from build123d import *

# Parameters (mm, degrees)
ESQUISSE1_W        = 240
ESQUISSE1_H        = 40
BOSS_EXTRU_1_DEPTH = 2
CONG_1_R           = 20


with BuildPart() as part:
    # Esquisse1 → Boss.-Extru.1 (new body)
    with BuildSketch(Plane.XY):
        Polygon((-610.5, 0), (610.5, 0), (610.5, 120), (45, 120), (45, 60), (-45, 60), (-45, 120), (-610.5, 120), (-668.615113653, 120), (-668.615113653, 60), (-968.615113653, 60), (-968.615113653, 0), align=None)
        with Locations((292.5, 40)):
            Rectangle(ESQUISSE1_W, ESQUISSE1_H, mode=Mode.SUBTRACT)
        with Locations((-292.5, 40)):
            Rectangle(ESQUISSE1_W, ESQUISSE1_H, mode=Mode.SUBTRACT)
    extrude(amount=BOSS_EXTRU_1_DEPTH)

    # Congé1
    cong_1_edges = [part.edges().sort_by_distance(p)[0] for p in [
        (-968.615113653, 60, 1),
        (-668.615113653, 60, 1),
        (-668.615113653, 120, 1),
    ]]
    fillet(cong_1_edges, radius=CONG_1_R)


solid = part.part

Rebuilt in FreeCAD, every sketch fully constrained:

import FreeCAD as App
import Part
import Sketcher
Q = App.Units.Quantity


def edges_at(feature, points):
    """Names of the edges that pass closest to the given points."""
    edges = feature.Shape.Edges
    near = lambda p: min(range(len(edges)), key=lambda i: edges[i].distToShape(Part.Vertex(*p))[0])
    return sorted({f"Edge{near(p) + 1}" for p in points})

doc = App.newDocument("Part")
params = doc.addObject("Spreadsheet::Sheet", "Params")
for row, (alias, value) in enumerate([
    ("sketch1_width", "90 mm"),
    ("sketch1_width2", "300 mm"),
    ("sketch1_width3", "240 mm"),
    ("sketch1_height", "120 mm"),
    ("sketch1_height2", "40 mm"),
    ("pad1_length", "2 mm"),
    ("fillet_radius", "20 mm"),
], start=1):
    params.set(f"A{row}", alias)
    params.set(f"B{row}", "=" + value)
    params.setAlias(f"B{row}", alias)

body = doc.addObject("PartDesign::Body", "Body")

# Sketch on XY plane
sketch1 = body.newObject("Sketcher::SketchObject", "Sketch")
sketch1.AttachmentSupport = (doc.getObject("XY_Plane"), [""])
sketch1.MapMode = "FlatFace"
sketch1.addGeometry([
    Part.LineSegment(App.Vector(610, 0, 0), App.Vector(610, 120, 0)),  # 0
    Part.LineSegment(App.Vector(610, 120, 0), App.Vector(45, 120, 0)),  # 1
    Part.LineSegment(App.Vector(45, 120, 0), App.Vector(45, 60, 0)),  # 2
    Part.LineSegment(App.Vector(45, 60, 0), App.Vector(-45, 60, 0)),  # 3
    Part.LineSegment(App.Vector(-45, 60, 0), App.Vector(-45, 120, 0)),  # 4
    Part.LineSegment(App.Vector(-45, 120, 0), App.Vector(-669, 120, 0)),  # 5
    Part.LineSegment(App.Vector(-669, 120, 0), App.Vector(-669, 60, 0)),  # 6
    Part.LineSegment(App.Vector(-669, 60, 0), App.Vector(-969, 60, 0)),  # 7
    Part.LineSegment(App.Vector(-969, 60, 0), App.Vector(-969, 0, 0)),  # 8
    Part.LineSegment(App.Vector(-969, 0, 0), App.Vector(610, 0, 0)),  # 9
    Part.LineSegment(App.Vector(-172, 20, 0), App.Vector(-412, 20, 0)),  # 10
    Part.LineSegment(App.Vector(-412, 20, 0), App.Vector(-412, 60, 0)),  # 11
    Part.LineSegment(App.Vector(-412, 60, 0), App.Vector(-172, 60, 0)),  # 12
    Part.LineSegment(App.Vector(-172, 60, 0), App.Vector(-172, 20, 0)),  # 13
    Part.LineSegment(App.Vector(412, 20, 0), App.Vector(172, 20, 0)),  # 14
    Part.LineSegment(App.Vector(172, 20, 0), App.Vector(172, 60, 0)),  # 15
    Part.LineSegment(App.Vector(172, 60, 0), App.Vector(412, 60, 0)),  # 16
    Part.LineSegment(App.Vector(412, 60, 0), App.Vector(412, 20, 0)),  # 17
], False)
sketch1.addConstraint([
    Sketcher.Constraint("Coincident", 0, 2, 1, 1),
    Sketcher.Constraint("Coincident", 1, 2, 2, 1),
    Sketcher.Constraint("Coincident", 2, 2, 3, 1),
    Sketcher.Constraint("Coincident", 3, 2, 4, 1),
    Sketcher.Constraint("Coincident", 4, 2, 5, 1),
    Sketcher.Constraint("Coincident", 5, 2, 6, 1),
    Sketcher.Constraint("Coincident", 6, 2, 7, 1),
    Sketcher.Constraint("Coincident", 7, 2, 8, 1),
    Sketcher.Constraint("Coincident", 8, 2, 9, 1),
    Sketcher.Constraint("Coincident", 9, 2, 0, 1),
    Sketcher.Constraint("Coincident", 10, 2, 11, 1),
    Sketcher.Constraint("Coincident", 11, 2, 12, 1),
    Sketcher.Constraint("Coincident", 12, 2, 13, 1),
    Sketcher.Constraint("Coincident", 13, 2, 10, 1),
    Sketcher.Constraint("Coincident", 14, 2, 15, 1),
    Sketcher.Constraint("Coincident", 15, 2, 16, 1),
    Sketcher.Constraint("Coincident", 16, 2, 17, 1),
    Sketcher.Constraint("Coincident", 17, 2, 14, 1),
    Sketcher.Constraint("Vertical", 0),
    Sketcher.Constraint("Horizontal", 1),
    Sketcher.Constraint("Vertical", 2),
    Sketcher.Constraint("Horizontal", 3),
    Sketcher.Constraint("Vertical", 4),
    Sketcher.Constraint("Horizontal", 5),
    Sketcher.Constraint("Vertical", 6),
    Sketcher.Constraint("Horizontal", 7),
    Sketcher.Constraint("Vertical", 8),
    Sketcher.Constraint("Horizontal", 9),
    Sketcher.Constraint("Horizontal", 10),
    Sketcher.Constraint("Vertical", 11),
    Sketcher.Constraint("Horizontal", 12),
    Sketcher.Constraint("Vertical", 13),
    Sketcher.Constraint("Horizontal", 14),
    Sketcher.Constraint("Vertical", 15),
    Sketcher.Constraint("Horizontal", 16),
    Sketcher.Constraint("Vertical", 17),
    Sketcher.Constraint("Symmetric", 1, 2, 4, 2, -2),
    Sketcher.Constraint("Symmetric", 13, 2, 14, 2, -2),
    Sketcher.Constraint("Symmetric", 11, 2, 16, 2, -2),
    Sketcher.Constraint("PointOnObject", 8, 2, -1),
    Sketcher.Constraint("Horizontal", 3, 2, 6, 2),
    Sketcher.Constraint("Horizontal", 7, 2, 11, 2),
    Sketcher.Constraint("Equal", 6, 8),
    Sketcher.Constraint("DistanceX", 3, 2, 3, 1, Q("90 mm")),
    Sketcher.Constraint("DistanceX", 7, 2, 7, 1, Q("300 mm")),
    Sketcher.Constraint("DistanceX", 10, 2, 10, 1, Q("240 mm")),
    Sketcher.Constraint("DistanceY", 0, 1, 0, 2, Q("120 mm")),
    Sketcher.Constraint("DistanceY", 11, 1, 11, 2, Q("40 mm")),
    Sketcher.Constraint("DistanceX", 1, 2, 1, 1, Q("565.5 mm")),
    Sketcher.Constraint("DistanceX", 13, 2, 14, 2, Q("345 mm")),
    Sketcher.Constraint("DistanceX", 5, 2, 5, 1, Q("623.615114 mm")),
])
sketch1.setExpression("Constraints[43]", "Params.sketch1_width")
sketch1.setExpression("Constraints[44]", "Params.sketch1_width2")
sketch1.setExpression("Constraints[45]", "Params.sketch1_width3")
sketch1.setExpression("Constraints[46]", "Params.sketch1_height")
sketch1.setExpression("Constraints[47]", "Params.sketch1_height2")
pad1 = body.newObject("PartDesign::Pad", "Pad")
pad1.Profile = sketch1
pad1.setExpression("Length", "Params.pad1_length")
doc.recompute()

fillet = body.newObject("PartDesign::Fillet", "Fillet")
fillet.Base = (pad1, edges_at(pad1, [(-968.615, 60, 1), (-668.615, 60, 1), (-668.615, 120, 1)]))
fillet.setExpression("Radius", "Params.fillet_radius")

doc.recompute()
